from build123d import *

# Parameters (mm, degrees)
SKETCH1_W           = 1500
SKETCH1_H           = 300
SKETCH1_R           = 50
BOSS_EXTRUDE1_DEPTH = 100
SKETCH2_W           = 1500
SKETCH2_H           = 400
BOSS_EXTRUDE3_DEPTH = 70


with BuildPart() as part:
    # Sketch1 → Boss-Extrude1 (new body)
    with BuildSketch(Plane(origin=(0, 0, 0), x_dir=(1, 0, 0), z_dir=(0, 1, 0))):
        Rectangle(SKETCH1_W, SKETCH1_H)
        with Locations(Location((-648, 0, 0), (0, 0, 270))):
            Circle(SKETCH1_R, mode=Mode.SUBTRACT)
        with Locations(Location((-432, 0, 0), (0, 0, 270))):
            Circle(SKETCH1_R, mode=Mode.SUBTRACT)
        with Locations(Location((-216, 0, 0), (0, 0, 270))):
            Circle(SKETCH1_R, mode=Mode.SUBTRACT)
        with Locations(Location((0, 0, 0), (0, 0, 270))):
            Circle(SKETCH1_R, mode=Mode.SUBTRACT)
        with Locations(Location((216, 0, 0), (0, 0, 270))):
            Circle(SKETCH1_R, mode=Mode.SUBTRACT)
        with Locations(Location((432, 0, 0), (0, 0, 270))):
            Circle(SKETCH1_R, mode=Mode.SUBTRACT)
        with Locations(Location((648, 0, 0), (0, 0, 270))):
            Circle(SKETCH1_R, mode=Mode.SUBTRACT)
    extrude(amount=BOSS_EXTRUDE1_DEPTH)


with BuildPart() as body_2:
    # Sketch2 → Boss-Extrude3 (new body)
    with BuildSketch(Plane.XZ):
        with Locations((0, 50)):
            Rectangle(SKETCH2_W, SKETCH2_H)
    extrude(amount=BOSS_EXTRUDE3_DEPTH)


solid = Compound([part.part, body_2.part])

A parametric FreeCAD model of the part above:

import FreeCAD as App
import Part
import Sketcher


def add_polygon(sketch, points):
    """Adds a closed chain of lines whose ends are joined by coincident constraints."""
    first, n = sketch.GeometryCount, len(points)
    for a, b in zip(points, points[1:] + points[:1]):
        sketch.addGeometry(Part.LineSegment(App.Vector(*a, 0), App.Vector(*b, 0)), False)
    for i in range(n):
        sketch.addConstraint(Sketcher.Constraint("Coincident", first + i, 2, first + (i + 1) % n, 1))

doc = App.newDocument("Part")
body = doc.addObject("PartDesign::Body", "Body")

# Sketch on XZ plane
sketch1 = doc.addObject("Sketcher::SketchObject", "Sketch")
body.addObject(sketch1)
sketch1.AttachmentSupport = (doc.XZ_Plane, [""])
sketch1.MapMode = "FlatFace"
add_polygon(sketch1, [(-750, -150), (-750, 150), (750, 150), (750, -150)])  # lines 0-3
sketch1.addGeometry(Part.Circle(App.Vector(-648, 0, 0), App.Vector(0, 0, 1), 50), False)  # 4
sketch1.addGeometry(Part.Circle(App.Vector(-432, 0, 0), App.Vector(0, 0, 1), 50), False)  # 5
sketch1.addGeometry(Part.Circle(App.Vector(-216, 0, 0), App.Vector(0, 0, 1), 50), False)  # 6
sketch1.addGeometry(Part.Circle(App.Vector(0, 0, 0), App.Vector(0, 0, 1), 50), False)  # 7
sketch1.addGeometry(Part.Circle(App.Vector(216, 0, 0), App.Vector(0, 0, 1), 50), False)  # 8
sketch1.addGeometry(Part.Circle(App.Vector(432, 0, 0), App.Vector(0, 0, 1), 50), False)  # 9
sketch1.addGeometry(Part.Circle(App.Vector(648, 0, 0), App.Vector(0, 0, 1), 50), False)  # 10
sketch1.addConstraint([
    Sketcher.Constraint("Vertical", 0),
    Sketcher.Constraint("Horizontal", 1),
    Sketcher.Constraint("Vertical", 2),
    Sketcher.Constraint("Horizontal", 3),
    Sketcher.Constraint("Coincident", 7, 3, -1, 1),
    Sketcher.Constraint("Equal", 4, 5),
    Sketcher.Constraint("Equal", 5, 6),
    Sketcher.Constraint("Equal", 6, 7),
    Sketcher.Constraint("Equal", 7, 8),
    Sketcher.Constraint("Equal", 8, 9),
    Sketcher.Constraint("Equal", 9, 10),
    Sketcher.Constraint("Symmetric", 6, 3, 8, 3, -1, 1),
    Sketcher.Constraint("Symmetric", 5, 3, 9, 3, -1, 1),
    Sketcher.Constraint("Symmetric", 4, 3, 10, 3, -1, 1),
    Sketcher.Constraint("Symmetric", 0, 2, 2, 2, -1, 1),
    Sketcher.Constraint("PointOnObject", 4, 3, -1),
    Sketcher.Constraint("PointOnObject", 5, 3, -1),
    Sketcher.Constraint("PointOnObject", 6, 3, -1),
    Sketcher.Constraint("Diameter", 4, 100.0),
    Sketcher.Constraint("DistanceX", 1, 1, 1, 2, 1500.0),
    Sketcher.Constraint("DistanceY", 0, 1, 0, 2, 300.0),
    Sketcher.Constraint("DistanceX", 4, 3, -1, 1, 648.0),
    Sketcher.Constraint("DistanceX", 5, 3, -1, 1, 432.0),
    Sketcher.Constraint("DistanceX", 6, 3, -1, 1, 216.0),
])
pad1 = doc.addObject("PartDesign::Pad", "Pad")
body.addObject(pad1)
pad1.Profile = sketch1
pad1.Length = 100
pad1.Reversed = True
body2 = doc.addObject("PartDesign::Body", "Body001")

# Sketch on XZ plane
sketch2 = doc.addObject("Sketcher::SketchObject", "Sketch001")
body2.addObject(sketch2)
sketch2.AttachmentSupport = (doc.getObject("XZ_Plane001"), [""])
sketch2.MapMode = "FlatFace"
add_polygon(sketch2, [(-750, 250), (-750, -150), (750, -150), (750, 250)])  # lines 0-3
sketch2.addConstraint([
    Sketcher.Constraint("Vertical", 0),
    Sketcher.Constraint("Horizontal", 1),
    Sketcher.Constraint("Vertical", 2),
    Sketcher.Constraint("Horizontal", 3),
    Sketcher.Constraint("DistanceX", 1, 1, 1, 2, 1500.0),
    Sketcher.Constraint("DistanceY", 0, 2, 0, 1, 400.0),
    Sketcher.Constraint("DistanceX", 0, 2, -1, 1, 750.0),
    Sketcher.Constraint("DistanceY", 0, 2, -1, 1, 150.0),
])
pad2 = doc.addObject("PartDesign::Pad", "Pad001")
body2.addObject(pad2)
pad2.Profile = sketch2
pad2.Length = 70

doc.recompute()
